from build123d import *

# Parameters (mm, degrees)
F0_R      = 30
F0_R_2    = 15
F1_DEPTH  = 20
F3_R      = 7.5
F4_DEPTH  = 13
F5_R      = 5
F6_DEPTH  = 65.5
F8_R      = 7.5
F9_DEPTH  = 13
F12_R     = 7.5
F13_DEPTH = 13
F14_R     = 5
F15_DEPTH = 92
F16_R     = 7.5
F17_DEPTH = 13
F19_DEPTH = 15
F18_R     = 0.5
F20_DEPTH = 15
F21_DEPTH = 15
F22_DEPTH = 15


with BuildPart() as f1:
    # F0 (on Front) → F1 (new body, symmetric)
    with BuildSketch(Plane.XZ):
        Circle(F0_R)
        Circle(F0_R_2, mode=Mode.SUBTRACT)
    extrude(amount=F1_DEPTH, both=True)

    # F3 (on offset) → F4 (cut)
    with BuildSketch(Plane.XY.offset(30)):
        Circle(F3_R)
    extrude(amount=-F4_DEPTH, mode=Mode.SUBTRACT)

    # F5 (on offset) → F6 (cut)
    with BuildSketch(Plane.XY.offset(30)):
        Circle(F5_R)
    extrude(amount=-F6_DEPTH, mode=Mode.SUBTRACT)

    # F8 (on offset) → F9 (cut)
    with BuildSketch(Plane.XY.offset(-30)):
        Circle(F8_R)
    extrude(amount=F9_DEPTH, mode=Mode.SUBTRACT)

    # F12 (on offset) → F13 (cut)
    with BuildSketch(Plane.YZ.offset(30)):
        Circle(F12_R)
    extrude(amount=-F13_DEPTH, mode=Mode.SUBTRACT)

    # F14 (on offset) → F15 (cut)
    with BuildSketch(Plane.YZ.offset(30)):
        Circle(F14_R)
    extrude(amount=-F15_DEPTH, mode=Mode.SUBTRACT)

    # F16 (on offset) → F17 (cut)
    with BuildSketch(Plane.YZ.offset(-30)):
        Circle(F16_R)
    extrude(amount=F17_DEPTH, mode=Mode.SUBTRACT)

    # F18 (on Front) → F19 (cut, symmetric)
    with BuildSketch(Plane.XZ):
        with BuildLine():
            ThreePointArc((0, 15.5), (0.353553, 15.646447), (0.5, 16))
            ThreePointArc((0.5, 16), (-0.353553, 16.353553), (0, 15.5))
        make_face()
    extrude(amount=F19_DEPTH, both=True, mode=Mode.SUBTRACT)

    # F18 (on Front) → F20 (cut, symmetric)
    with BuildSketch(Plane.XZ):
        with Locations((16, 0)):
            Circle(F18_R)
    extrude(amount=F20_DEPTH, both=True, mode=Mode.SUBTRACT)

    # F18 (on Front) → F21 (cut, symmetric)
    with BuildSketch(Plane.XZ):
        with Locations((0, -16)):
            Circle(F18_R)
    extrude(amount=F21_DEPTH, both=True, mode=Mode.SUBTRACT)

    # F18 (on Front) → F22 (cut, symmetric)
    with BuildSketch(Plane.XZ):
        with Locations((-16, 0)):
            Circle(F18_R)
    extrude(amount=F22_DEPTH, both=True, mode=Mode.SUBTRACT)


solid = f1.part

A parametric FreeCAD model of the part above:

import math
import FreeCAD as App
import Part
import Sketcher

V = App.Vector

doc = App.newDocument("Part")
body = doc.addObject("PartDesign::Body", "Body")

sketch1 = doc.addObject("Sketcher::SketchObject", "Sketch")
body.addObject(sketch1)
sketch1.AttachmentSupport = (doc.XZ_Plane, [""])
sketch1.MapMode = "FlatFace"
sketch1.addGeometry([
    Part.Circle(V(0, 0, 0), V(0, 0, 1), 30),
    Part.Circle(V(0, 0, 0), V(0, 0, 1), 15),
], False)
sketch1.addConstraint([
    Sketcher.Constraint("Coincident", 0, 3, -1, 1),
    Sketcher.Constraint("Coincident", 1, 3, -1, 1),
    Sketcher.Constraint("Diameter", 0, 60.0),
    Sketcher.Constraint("Diameter", 1, 30.0),
])
pad1 = doc.addObject("PartDesign::Pad", "Pad")
body.addObject(pad1)
pad1.Profile = sketch1
pad1.Length = 40
pad1.Midplane = True

sketch2 = doc.addObject("Sketcher::SketchObject", "Sketch001")
body.addObject(sketch2)
sketch2.AttachmentSupport = (doc.XY_Plane, [""])
sketch2.MapMode = "FlatFace"
sketch2.AttachmentOffset = App.Placement(V(0, 0, 30), App.Rotation())
sketch2.addGeometry(Part.Circle(V(0, 0, 0), V(0, 0, 1), 7.5), False)
sketch2.addConstraint([
    Sketcher.Constraint("Coincident", 0, 3, -1, 1),
    Sketcher.Constraint("Diameter", 0, 15.0),
])
pocket1 = doc.addObject("PartDesign::Pocket", "Pocket")
body.addObject(pocket1)
pocket1.Profile = sketch2
pocket1.Length = 13

sketch3 = doc.addObject("Sketcher::SketchObject", "Sketch002")
body.addObject(sketch3)
sketch3.AttachmentSupport = (doc.XY_Plane, [""])
sketch3.MapMode = "FlatFace"
sketch3.AttachmentOffset = App.Placement(V(0, 0, 30), App.Rotation())
sketch3.addGeometry(Part.Circle(V(0, 0, 0), V(0, 0, 1), 5), False)
sketch3.addConstraint([
    Sketcher.Constraint("Coincident", 0, 3, -1, 1),
    Sketcher.Constraint("Diameter", 0, 10.0),
])
pocket2 = doc.addObject("PartDesign::Pocket", "Pocket001")
body.addObject(pocket2)
pocket2.Profile = sketch3
pocket2.Length = 65.5

sketch4 = doc.addObject("Sketcher::SketchObject", "Sketch003")
body.addObject(sketch4)
sketch4.AttachmentSupport = (doc.XY_Plane, [""])
sketch4.MapMode = "FlatFace"
sketch4.AttachmentOffset = App.Placement(V(0, 0, -30), App.Rotation())
sketch4.addGeometry(Part.Circle(V(0, 0, 0), V(0, 0, 1), 7.5), False)
sketch4.addConstraint([
    Sketcher.Constraint("Coincident", 0, 3, -1, 1),
    Sketcher.Constraint("Diameter", 0, 15.0),
])
pocket3 = doc.addObject("PartDesign::Pocket", "Pocket002")
body.addObject(pocket3)
pocket3.Profile = sketch4
pocket3.Length = 13
pocket3.Reversed = True

sketch5 = doc.addObject("Sketcher::SketchObject", "Sketch004")
body.addObject(sketch5)
sketch5.AttachmentSupport = (doc.YZ_Plane, [""])
sketch5.MapMode = "FlatFace"
sketch5.AttachmentOffset = App.Placement(V(0, 0, 30), App.Rotation())
sketch5.addGeometry(Part.Circle(V(0, 0, 0), V(0, 0, 1), 7.5), False)
sketch5.addConstraint([
    Sketcher.Constraint("Coincident", 0, 3, -1, 1),
    Sketcher.Constraint("Diameter", 0, 15.0),
])
pocket4 = doc.addObject("PartDesign::Pocket", "Pocket003")
body.addObject(pocket4)
pocket4.Profile = sketch5
pocket4.Length = 13

sketch6 = doc.addObject("Sketcher::SketchObject", "Sketch005")
body.addObject(sketch6)
sketch6.AttachmentSupport = (doc.YZ_Plane, [""])
sketch6.MapMode = "FlatFace"
sketch6.AttachmentOffset = App.Placement(V(0, 0, 30), App.Rotation())
sketch6.addGeometry(Part.Circle(V(0, 0, 0), V(0, 0, 1), 5), False)
sketch6.addConstraint([
    Sketcher.Constraint("Coincident", 0, 3, -1, 1),
    Sketcher.Constraint("Diameter", 0, 10.0),
])
pocket5 = doc.addObject("PartDesign::Pocket", "Pocket004")
body.addObject(pocket5)
pocket5.Profile = sketch6
pocket5.Length = 92

sketch7 = doc.addObject("Sketcher::SketchObject", "Sketch006")
body.addObject(sketch7)
sketch7.AttachmentSupport = (doc.YZ_Plane, [""])
sketch7.MapMode = "FlatFace"
sketch7.AttachmentOffset = App.Placement(V(0, 0, -30), App.Rotation())
sketch7.addGeometry(Part.Circle(V(0, 0, 0), V(0, 0, 1), 7.5), False)
sketch7.addConstraint([
    Sketcher.Constraint("Coincident", 0, 3, -1, 1),
    Sketcher.Constraint("Diameter", 0, 15.0),
])
pocket6 = doc.addObject("PartDesign::Pocket", "Pocket005")
body.addObject(pocket6)
pocket6.Profile = sketch7
pocket6.Length = 13
pocket6.Reversed = True

sketch8 = doc.addObject("Sketcher::SketchObject", "Sketch007")
body.addObject(sketch8)
sketch8.AttachmentSupport = (doc.XZ_Plane, [""])
sketch8.MapMode = "FlatFace"
sketch8.addGeometry([
    Part.ArcOfCircle(Part.Circle(V(-0.000001, 16.000001, 0), V(0, 0, 1), 0.500001), math.radians(-89.999847), math.radians(-0.000153)),
    Part.ArcOfCircle(Part.Circle(V(0, 16, 0), V(0, 0, 1), 0.5), math.radians(0.000026), math.radians(269.999974)),
], False)
sketch8.addConstraint([
    Sketcher.Constraint("Coincident", 0, 1, 1, 2),
    Sketcher.Constraint("Coincident", 1, 1, 0, 2),
    Sketcher.Constraint("Equal", 0, 1),
    Sketcher.Constraint("PointOnObject", 0, 3, -2),
    Sketcher.Constraint("PointOnObject", 0, 1, -2),
    Sketcher.Constraint("Horizontal", 0, 3, 1, 1),
    Sketcher.Constraint("Radius", 0, 0.500001),
    Sketcher.Constraint("DistanceY", -1, 1, 0, 3, 16.000001),
])
pocket7 = doc.addObject("PartDesign::Pocket", "Pocket006")
body.addObject(pocket7)
pocket7.Profile = sketch8
pocket7.Length = 30
pocket7.Midplane = True

sketch9 = doc.addObject("Sketcher::SketchObject", "Sketch008")
body.addObject(sketch9)
sketch9.AttachmentSupport = (doc.XZ_Plane, [""])
sketch9.MapMode = "FlatFace"
sketch9.addGeometry(Part.Circle(V(16, 0, 0), V(0, 0, 1), 0.5), False)
sketch9.addConstraint([
    Sketcher.Constraint("PointOnObject", 0, 3, -1),
    Sketcher.Constraint("Diameter", 0, 1.0),
    Sketcher.Constraint("DistanceX", -1, 1, 0, 3, 16.0),
])
pocket8 = doc.addObject("PartDesign::Pocket", "Pocket007")
body.addObject(pocket8)
pocket8.Profile = sketch9
pocket8.Length = 30
pocket8.Midplane = True

sketch10 = doc.addObject("Sketcher::SketchObject", "Sketch009")
body.addObject(sketch10)
sketch10.AttachmentSupport = (doc.XZ_Plane, [""])
sketch10.MapMode = "FlatFace"
sketch10.addGeometry(Part.Circle(V(0, -16, 0), V(0, 0, 1), 0.5), False)
sketch10.addConstraint([
    Sketcher.Constraint("PointOnObject", 0, 3, -2),
    Sketcher.Constraint("Diameter", 0, 1.0),
    Sketcher.Constraint("DistanceY", 0, 3, -1, 1, 16.0),
])
pocket9 = doc.addObject("PartDesign::Pocket", "Pocket008")
body.addObject(pocket9)
pocket9.Profile = sketch10
pocket9.Length = 30
pocket9.Midplane = True

sketch11 = doc.addObject("Sketcher::SketchObject", "Sketch010")
body.addObject(sketch11)
sketch11.AttachmentSupport = (doc.XZ_Plane, [""])
sketch11.MapMode = "FlatFace"
sketch11.addGeometry(Part.Circle(V(-16, 0, 0), V(0, 0, 1), 0.5), False)
sketch11.addConstraint([
    Sketcher.Constraint("PointOnObject", 0, 3, -1),
    Sketcher.Constraint("Diameter", 0, 1.0),
    Sketcher.Constraint("DistanceX", 0, 3, -1, 1, 16.0),
])
pocket10 = doc.addObject("PartDesign::Pocket", "Pocket009")
body.addObject(pocket10)
pocket10.Profile = sketch11
pocket10.Length = 30
pocket10.Midplane = True

doc.recompute()
